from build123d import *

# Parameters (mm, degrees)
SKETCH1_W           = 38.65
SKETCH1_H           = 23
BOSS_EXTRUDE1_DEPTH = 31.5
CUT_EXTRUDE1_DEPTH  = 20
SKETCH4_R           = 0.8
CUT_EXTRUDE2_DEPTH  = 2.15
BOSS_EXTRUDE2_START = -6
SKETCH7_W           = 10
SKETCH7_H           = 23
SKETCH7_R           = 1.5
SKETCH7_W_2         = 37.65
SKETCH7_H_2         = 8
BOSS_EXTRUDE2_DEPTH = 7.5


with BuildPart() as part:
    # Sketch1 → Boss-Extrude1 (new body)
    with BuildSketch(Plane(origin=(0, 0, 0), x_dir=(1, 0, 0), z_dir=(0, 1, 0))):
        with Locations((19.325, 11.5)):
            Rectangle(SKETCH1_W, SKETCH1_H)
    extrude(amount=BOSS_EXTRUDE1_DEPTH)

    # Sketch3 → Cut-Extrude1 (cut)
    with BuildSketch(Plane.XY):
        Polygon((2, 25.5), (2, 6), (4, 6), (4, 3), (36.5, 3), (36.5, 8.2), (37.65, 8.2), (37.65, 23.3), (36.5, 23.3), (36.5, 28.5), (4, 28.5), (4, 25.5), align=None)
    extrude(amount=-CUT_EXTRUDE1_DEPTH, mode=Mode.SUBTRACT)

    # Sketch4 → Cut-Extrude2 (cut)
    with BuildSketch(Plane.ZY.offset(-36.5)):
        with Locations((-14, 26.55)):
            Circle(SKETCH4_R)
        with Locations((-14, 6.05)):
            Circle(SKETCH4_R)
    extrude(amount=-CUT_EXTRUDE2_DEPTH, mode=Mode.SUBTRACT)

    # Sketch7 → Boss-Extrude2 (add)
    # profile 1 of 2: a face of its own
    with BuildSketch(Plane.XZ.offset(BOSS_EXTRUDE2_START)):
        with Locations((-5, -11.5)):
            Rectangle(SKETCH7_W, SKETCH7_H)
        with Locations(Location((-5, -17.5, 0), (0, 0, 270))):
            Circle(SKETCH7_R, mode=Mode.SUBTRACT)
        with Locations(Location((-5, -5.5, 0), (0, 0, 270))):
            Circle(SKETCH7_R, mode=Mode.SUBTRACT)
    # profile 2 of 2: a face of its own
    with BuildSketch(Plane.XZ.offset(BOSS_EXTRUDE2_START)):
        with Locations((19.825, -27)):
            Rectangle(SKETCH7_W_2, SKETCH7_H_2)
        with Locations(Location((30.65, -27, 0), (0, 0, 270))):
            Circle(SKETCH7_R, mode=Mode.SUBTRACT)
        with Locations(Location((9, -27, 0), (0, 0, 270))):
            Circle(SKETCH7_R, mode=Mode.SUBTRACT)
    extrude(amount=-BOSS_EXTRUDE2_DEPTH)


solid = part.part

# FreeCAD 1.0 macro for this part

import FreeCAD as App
import Part
import Sketcher
from FreeCAD import Vector


def add_polygon(sketch, points):
    """Adds a closed chain of lines whose ends are joined by coincident constraints."""
    first, n = sketch.GeometryCount, len(points)
    for a, b in zip(points, points[1:] + points[:1]):
        sketch.addGeometry(Part.LineSegment(App.Vector(*a, 0), App.Vector(*b, 0)), False)
    for i in range(n):
        sketch.addConstraint(Sketcher.Constraint("Coincident", first + i, 2, first + (i + 1) % n, 1))

doc = App.newDocument("Part")
body = doc.addObject("PartDesign::Body", "Body")

# Sketch on XZ plane
sketch1 = body.newObject("Sketcher::SketchObject", "Sketch")
sketch1.AttachmentSupport = (doc.getObject("XZ_Plane"), [""])
sketch1.MapMode = "FlatFace"
add_polygon(sketch1, [(0, -23), (0, 0), (39, 0), (39, -23)])  # lines 0-3
sketch1.addConstraint(Sketcher.Constraint("Vertical", 0))
sketch1.addConstraint(Sketcher.Constraint("Horizontal", 1))
sketch1.addConstraint(Sketcher.Constraint("Vertical", 2))
sketch1.addConstraint(Sketcher.Constraint("Horizontal", 3))
sketch1.addConstraint(Sketcher.Constraint("Coincident", 0, 2, -1, 1))
sketch1.addConstraint(Sketcher.Constraint("DistanceY", 0, 1, 0, 2, 23.0))
sketch1.addConstraint(Sketcher.Constraint("DistanceX", 1, 1, 1, 2, 38.65))
pad1 = body.newObject("PartDesign::Pad", "Pad")
pad1.Profile = sketch1
pad1.Length = 31.5
pad1.Reversed = True

# Sketch on XY plane
sketch2 = body.newObject("Sketcher::SketchObject", "Sketch001")
sketch2.AttachmentSupport = (doc.getObject("XY_Plane"), [""])
sketch2.MapMode = "FlatFace"
add_polygon(sketch2, [(2, 25.5), (2, 6), (4, 6), (4, 3), (36.5, 3), (36.5, 8.2), (37.6, 8.2), (37.6, 23.3), (36.5, 23.3), (36.5, 28.5), (4, 28.5), (4, 25.5)])  # lines 0-11
sketch2.addConstraint(Sketcher.Constraint("Vertical", 0))
sketch2.addConstraint(Sketcher.Constraint("Horizontal", 1))
sketch2.addConstraint(Sketcher.Constraint("Vertical", 2))
sketch2.addConstraint(Sketcher.Constraint("Horizontal", 3))
sketch2.addConstraint(Sketcher.Constraint("Vertical", 4))
sketch2.addConstraint(Sketcher.Constraint("Horizontal", 5))
sketch2.addConstraint(Sketcher.Constraint("Vertical", 6))
sketch2.addConstraint(Sketcher.Constraint("Horizontal", 7))
sketch2.addConstraint(Sketcher.Constraint("Vertical", 8))
sketch2.addConstraint(Sketcher.Constraint("Horizontal", 9))
sketch2.addConstraint(Sketcher.Constraint("Vertical", 10))
sketch2.addConstraint(Sketcher.Constraint("Horizontal", 11))
sketch2.addConstraint(Sketcher.Constraint("Vertical", 4, 2, 7, 2))
sketch2.addConstraint(Sketcher.Constraint("Vertical", 2, 2, 9, 2))
sketch2.addConstraint(Sketcher.Constraint("Equal", 4, 8))
sketch2.addConstraint(Sketcher.Constraint("Equal", 2, 10))
sketch2.addConstraint(Sketcher.Constraint("DistanceX", 1, 1, 1, 2, 2.0))
sketch2.addConstraint(Sketcher.Constraint("DistanceY", 2, 2, 2, 1, 3.0))
sketch2.addConstraint(Sketcher.Constraint("DistanceX", 3, 1, 3, 2, 32.5))
sketch2.addConstraint(Sketcher.Constraint("DistanceY", 0, 2, 0, 1, 19.5))
sketch2.addConstraint(Sketcher.Constraint("DistanceY", 4, 1, 4, 2, 5.2))
sketch2.addConstraint(Sketcher.Constraint("DistanceX", -1, 1, 0, 2, 2.0))
sketch2.addConstraint(Sketcher.Constraint("DistanceY", -1, 1, 0, 2, 6.0))
sketch2.addConstraint(Sketcher.Constraint("DistanceX", 5, 1, 5, 2, 1.15))
pocket1 = body.newObject("PartDesign::Pocket", "Pocket")
pocket1.Profile = sketch2
pocket1.Length = 20

# Sketch on YZ plane
sketch3 = body.newObject("Sketcher::SketchObject", "Sketch002")
sketch3.AttachmentSupport = (doc.getObject("YZ_Plane"), [""])
sketch3.MapMode = "FlatFace"
sketch3.AttachmentOffset = App.Placement(Vector(0, 0, 36.5), App.Rotation())
sketch3.addGeometry(Part.Circle(Vector(26.6, -14, 0), Vector(0, 0, 1), 0.8), False)
sketch3.addGeometry(Part.Circle(Vector(6, -14, 0), Vector(0, 0, 1), 0.8), False)
sketch3.addConstraint(Sketcher.Constraint("Equal", 0, 1))
sketch3.addConstraint(Sketcher.Constraint("Horizontal", 0, 3, 1, 3))
sketch3.addConstraint(Sketcher.Constraint("Diameter", 0, 1.6))
sketch3.addConstraint(Sketcher.Constraint("DistanceY", 0, 3, -1, 1, 14.0))
sketch3.addConstraint(Sketcher.Constraint("DistanceX", 1, 3, 0, 3, 20.5))
sketch3.addConstraint(Sketcher.Constraint("DistanceX", -1, 1, 0, 3, 26.55))
pocket2 = body.newObject("PartDesign::Pocket", "Pocket001")
pocket2.Profile = sketch3
pocket2.Length = 2.15
pocket2.Reversed = True

# Sketch on XZ plane
sketch4 = body.newObject("Sketcher::SketchObject", "Sketch003")
sketch4.AttachmentSupport = (doc.getObject("XZ_Plane"), [""])
sketch4.MapMode = "FlatFace"
sketch4.AttachmentOffset = App.Placement(Vector(0, 0, -6), App.Rotation())
add_polygon(sketch4, [(-10, 0), (-10, -23), (0, -23), (0, 0)])  # lines 0-3
sketch4.addGeometry(Part.Circle(Vector(-5, -17.5, 0), Vector(0, 0, 1), 1.5), False)  # 4
sketch4.addGeometry(Part.Circle(Vector(-5, -5.5, 0), Vector(0, 0, 1), 1.5), False)  # 5
add_polygon(sketch4, [(1, -23), (1, -31), (38.6, -31), (38.6, -23)])  # lines 6-9
sketch4.addGeometry(Part.Circle(Vector(9, -27, 0), Vector(0, 0, 1), 1.5), False)  # 10
sketch4.addGeometry(Part.Circle(Vector(30.6, -27, 0), Vector(0, 0, 1), 1.5), False)  # 11
sketch4.addConstraint(Sketcher.Constraint("Vertical", 0))
sketch4.addConstraint(Sketcher.Constraint("Horizontal", 1))
sketch4.addConstraint(Sketcher.Constraint("Vertical", 2))
sketch4.addConstraint(Sketcher.Constraint("Horizontal", 3))
sketch4.addConstraint(Sketcher.Constraint("Vertical", 6))
sketch4.addConstraint(Sketcher.Constraint("Horizontal", 7))
sketch4.addConstraint(Sketcher.Constraint("Vertical", 8))
sketch4.addConstraint(Sketcher.Constraint("Horizontal", 9))
sketch4.addConstraint(Sketcher.Constraint("Coincident", 2, 2, -1, 1))
sketch4.addConstraint(Sketcher.Constraint("Equal", 4, 5))
sketch4.addConstraint(Sketcher.Constraint("Equal", 5, 10))
sketch4.addConstraint(Sketcher.Constraint("Equal", 10, 11))
sketch4.addConstraint(Sketcher.Constraint("Horizontal", 10, 3, 11, 3))
sketch4.addConstraint(Sketcher.Constraint("Horizontal", 1, 2, 8, 2))
sketch4.addConstraint(Sketcher.Constraint("Vertical", 4, 3, 5, 3))
sketch4.addConstraint(Sketcher.Constraint("Diameter", 4, 3.0))
sketch4.addConstraint(Sketcher.Constraint("DistanceX", 1, 1, 1, 2, 10.0))
sketch4.addConstraint(Sketcher.Constraint("DistanceY", 0, 2, 0, 1, 23.0))
sketch4.addConstraint(Sketcher.Constraint("DistanceY", 6, 2, 6, 1, 8.0))
sketch4.addConstraint(Sketcher.Constraint("DistanceX", 4, 3, -1, 1, 5.0))
sketch4.addConstraint(Sketcher.Constraint("DistanceX", -1, 1, 10, 3, 9.0))
sketch4.addConstraint(Sketcher.Constraint("DistanceY", 10, 3, -1, 1, 27.0))
sketch4.addConstraint(Sketcher.Constraint("DistanceX", -1, 1, 6, 2, 1.0))
sketch4.addConstraint(Sketcher.Constraint("DistanceY", 4, 3, 5, 3, 12.0))
sketch4.addConstraint(Sketcher.Constraint("DistanceX", 11, 3, 7, 2, 8.0))
sketch4.addConstraint(Sketcher.Constraint("DistanceX", 7, 1, 7, 2, 37.65))
sketch4.addConstraint(Sketcher.Constraint("DistanceY", 4, 3, -1, 1, 17.5))
pad2 = body.newObject("PartDesign::Pad", "Pad001")
pad2.Profile = sketch4
pad2.Length = 7.5
pad2.Reversed = True

doc.recompute()
